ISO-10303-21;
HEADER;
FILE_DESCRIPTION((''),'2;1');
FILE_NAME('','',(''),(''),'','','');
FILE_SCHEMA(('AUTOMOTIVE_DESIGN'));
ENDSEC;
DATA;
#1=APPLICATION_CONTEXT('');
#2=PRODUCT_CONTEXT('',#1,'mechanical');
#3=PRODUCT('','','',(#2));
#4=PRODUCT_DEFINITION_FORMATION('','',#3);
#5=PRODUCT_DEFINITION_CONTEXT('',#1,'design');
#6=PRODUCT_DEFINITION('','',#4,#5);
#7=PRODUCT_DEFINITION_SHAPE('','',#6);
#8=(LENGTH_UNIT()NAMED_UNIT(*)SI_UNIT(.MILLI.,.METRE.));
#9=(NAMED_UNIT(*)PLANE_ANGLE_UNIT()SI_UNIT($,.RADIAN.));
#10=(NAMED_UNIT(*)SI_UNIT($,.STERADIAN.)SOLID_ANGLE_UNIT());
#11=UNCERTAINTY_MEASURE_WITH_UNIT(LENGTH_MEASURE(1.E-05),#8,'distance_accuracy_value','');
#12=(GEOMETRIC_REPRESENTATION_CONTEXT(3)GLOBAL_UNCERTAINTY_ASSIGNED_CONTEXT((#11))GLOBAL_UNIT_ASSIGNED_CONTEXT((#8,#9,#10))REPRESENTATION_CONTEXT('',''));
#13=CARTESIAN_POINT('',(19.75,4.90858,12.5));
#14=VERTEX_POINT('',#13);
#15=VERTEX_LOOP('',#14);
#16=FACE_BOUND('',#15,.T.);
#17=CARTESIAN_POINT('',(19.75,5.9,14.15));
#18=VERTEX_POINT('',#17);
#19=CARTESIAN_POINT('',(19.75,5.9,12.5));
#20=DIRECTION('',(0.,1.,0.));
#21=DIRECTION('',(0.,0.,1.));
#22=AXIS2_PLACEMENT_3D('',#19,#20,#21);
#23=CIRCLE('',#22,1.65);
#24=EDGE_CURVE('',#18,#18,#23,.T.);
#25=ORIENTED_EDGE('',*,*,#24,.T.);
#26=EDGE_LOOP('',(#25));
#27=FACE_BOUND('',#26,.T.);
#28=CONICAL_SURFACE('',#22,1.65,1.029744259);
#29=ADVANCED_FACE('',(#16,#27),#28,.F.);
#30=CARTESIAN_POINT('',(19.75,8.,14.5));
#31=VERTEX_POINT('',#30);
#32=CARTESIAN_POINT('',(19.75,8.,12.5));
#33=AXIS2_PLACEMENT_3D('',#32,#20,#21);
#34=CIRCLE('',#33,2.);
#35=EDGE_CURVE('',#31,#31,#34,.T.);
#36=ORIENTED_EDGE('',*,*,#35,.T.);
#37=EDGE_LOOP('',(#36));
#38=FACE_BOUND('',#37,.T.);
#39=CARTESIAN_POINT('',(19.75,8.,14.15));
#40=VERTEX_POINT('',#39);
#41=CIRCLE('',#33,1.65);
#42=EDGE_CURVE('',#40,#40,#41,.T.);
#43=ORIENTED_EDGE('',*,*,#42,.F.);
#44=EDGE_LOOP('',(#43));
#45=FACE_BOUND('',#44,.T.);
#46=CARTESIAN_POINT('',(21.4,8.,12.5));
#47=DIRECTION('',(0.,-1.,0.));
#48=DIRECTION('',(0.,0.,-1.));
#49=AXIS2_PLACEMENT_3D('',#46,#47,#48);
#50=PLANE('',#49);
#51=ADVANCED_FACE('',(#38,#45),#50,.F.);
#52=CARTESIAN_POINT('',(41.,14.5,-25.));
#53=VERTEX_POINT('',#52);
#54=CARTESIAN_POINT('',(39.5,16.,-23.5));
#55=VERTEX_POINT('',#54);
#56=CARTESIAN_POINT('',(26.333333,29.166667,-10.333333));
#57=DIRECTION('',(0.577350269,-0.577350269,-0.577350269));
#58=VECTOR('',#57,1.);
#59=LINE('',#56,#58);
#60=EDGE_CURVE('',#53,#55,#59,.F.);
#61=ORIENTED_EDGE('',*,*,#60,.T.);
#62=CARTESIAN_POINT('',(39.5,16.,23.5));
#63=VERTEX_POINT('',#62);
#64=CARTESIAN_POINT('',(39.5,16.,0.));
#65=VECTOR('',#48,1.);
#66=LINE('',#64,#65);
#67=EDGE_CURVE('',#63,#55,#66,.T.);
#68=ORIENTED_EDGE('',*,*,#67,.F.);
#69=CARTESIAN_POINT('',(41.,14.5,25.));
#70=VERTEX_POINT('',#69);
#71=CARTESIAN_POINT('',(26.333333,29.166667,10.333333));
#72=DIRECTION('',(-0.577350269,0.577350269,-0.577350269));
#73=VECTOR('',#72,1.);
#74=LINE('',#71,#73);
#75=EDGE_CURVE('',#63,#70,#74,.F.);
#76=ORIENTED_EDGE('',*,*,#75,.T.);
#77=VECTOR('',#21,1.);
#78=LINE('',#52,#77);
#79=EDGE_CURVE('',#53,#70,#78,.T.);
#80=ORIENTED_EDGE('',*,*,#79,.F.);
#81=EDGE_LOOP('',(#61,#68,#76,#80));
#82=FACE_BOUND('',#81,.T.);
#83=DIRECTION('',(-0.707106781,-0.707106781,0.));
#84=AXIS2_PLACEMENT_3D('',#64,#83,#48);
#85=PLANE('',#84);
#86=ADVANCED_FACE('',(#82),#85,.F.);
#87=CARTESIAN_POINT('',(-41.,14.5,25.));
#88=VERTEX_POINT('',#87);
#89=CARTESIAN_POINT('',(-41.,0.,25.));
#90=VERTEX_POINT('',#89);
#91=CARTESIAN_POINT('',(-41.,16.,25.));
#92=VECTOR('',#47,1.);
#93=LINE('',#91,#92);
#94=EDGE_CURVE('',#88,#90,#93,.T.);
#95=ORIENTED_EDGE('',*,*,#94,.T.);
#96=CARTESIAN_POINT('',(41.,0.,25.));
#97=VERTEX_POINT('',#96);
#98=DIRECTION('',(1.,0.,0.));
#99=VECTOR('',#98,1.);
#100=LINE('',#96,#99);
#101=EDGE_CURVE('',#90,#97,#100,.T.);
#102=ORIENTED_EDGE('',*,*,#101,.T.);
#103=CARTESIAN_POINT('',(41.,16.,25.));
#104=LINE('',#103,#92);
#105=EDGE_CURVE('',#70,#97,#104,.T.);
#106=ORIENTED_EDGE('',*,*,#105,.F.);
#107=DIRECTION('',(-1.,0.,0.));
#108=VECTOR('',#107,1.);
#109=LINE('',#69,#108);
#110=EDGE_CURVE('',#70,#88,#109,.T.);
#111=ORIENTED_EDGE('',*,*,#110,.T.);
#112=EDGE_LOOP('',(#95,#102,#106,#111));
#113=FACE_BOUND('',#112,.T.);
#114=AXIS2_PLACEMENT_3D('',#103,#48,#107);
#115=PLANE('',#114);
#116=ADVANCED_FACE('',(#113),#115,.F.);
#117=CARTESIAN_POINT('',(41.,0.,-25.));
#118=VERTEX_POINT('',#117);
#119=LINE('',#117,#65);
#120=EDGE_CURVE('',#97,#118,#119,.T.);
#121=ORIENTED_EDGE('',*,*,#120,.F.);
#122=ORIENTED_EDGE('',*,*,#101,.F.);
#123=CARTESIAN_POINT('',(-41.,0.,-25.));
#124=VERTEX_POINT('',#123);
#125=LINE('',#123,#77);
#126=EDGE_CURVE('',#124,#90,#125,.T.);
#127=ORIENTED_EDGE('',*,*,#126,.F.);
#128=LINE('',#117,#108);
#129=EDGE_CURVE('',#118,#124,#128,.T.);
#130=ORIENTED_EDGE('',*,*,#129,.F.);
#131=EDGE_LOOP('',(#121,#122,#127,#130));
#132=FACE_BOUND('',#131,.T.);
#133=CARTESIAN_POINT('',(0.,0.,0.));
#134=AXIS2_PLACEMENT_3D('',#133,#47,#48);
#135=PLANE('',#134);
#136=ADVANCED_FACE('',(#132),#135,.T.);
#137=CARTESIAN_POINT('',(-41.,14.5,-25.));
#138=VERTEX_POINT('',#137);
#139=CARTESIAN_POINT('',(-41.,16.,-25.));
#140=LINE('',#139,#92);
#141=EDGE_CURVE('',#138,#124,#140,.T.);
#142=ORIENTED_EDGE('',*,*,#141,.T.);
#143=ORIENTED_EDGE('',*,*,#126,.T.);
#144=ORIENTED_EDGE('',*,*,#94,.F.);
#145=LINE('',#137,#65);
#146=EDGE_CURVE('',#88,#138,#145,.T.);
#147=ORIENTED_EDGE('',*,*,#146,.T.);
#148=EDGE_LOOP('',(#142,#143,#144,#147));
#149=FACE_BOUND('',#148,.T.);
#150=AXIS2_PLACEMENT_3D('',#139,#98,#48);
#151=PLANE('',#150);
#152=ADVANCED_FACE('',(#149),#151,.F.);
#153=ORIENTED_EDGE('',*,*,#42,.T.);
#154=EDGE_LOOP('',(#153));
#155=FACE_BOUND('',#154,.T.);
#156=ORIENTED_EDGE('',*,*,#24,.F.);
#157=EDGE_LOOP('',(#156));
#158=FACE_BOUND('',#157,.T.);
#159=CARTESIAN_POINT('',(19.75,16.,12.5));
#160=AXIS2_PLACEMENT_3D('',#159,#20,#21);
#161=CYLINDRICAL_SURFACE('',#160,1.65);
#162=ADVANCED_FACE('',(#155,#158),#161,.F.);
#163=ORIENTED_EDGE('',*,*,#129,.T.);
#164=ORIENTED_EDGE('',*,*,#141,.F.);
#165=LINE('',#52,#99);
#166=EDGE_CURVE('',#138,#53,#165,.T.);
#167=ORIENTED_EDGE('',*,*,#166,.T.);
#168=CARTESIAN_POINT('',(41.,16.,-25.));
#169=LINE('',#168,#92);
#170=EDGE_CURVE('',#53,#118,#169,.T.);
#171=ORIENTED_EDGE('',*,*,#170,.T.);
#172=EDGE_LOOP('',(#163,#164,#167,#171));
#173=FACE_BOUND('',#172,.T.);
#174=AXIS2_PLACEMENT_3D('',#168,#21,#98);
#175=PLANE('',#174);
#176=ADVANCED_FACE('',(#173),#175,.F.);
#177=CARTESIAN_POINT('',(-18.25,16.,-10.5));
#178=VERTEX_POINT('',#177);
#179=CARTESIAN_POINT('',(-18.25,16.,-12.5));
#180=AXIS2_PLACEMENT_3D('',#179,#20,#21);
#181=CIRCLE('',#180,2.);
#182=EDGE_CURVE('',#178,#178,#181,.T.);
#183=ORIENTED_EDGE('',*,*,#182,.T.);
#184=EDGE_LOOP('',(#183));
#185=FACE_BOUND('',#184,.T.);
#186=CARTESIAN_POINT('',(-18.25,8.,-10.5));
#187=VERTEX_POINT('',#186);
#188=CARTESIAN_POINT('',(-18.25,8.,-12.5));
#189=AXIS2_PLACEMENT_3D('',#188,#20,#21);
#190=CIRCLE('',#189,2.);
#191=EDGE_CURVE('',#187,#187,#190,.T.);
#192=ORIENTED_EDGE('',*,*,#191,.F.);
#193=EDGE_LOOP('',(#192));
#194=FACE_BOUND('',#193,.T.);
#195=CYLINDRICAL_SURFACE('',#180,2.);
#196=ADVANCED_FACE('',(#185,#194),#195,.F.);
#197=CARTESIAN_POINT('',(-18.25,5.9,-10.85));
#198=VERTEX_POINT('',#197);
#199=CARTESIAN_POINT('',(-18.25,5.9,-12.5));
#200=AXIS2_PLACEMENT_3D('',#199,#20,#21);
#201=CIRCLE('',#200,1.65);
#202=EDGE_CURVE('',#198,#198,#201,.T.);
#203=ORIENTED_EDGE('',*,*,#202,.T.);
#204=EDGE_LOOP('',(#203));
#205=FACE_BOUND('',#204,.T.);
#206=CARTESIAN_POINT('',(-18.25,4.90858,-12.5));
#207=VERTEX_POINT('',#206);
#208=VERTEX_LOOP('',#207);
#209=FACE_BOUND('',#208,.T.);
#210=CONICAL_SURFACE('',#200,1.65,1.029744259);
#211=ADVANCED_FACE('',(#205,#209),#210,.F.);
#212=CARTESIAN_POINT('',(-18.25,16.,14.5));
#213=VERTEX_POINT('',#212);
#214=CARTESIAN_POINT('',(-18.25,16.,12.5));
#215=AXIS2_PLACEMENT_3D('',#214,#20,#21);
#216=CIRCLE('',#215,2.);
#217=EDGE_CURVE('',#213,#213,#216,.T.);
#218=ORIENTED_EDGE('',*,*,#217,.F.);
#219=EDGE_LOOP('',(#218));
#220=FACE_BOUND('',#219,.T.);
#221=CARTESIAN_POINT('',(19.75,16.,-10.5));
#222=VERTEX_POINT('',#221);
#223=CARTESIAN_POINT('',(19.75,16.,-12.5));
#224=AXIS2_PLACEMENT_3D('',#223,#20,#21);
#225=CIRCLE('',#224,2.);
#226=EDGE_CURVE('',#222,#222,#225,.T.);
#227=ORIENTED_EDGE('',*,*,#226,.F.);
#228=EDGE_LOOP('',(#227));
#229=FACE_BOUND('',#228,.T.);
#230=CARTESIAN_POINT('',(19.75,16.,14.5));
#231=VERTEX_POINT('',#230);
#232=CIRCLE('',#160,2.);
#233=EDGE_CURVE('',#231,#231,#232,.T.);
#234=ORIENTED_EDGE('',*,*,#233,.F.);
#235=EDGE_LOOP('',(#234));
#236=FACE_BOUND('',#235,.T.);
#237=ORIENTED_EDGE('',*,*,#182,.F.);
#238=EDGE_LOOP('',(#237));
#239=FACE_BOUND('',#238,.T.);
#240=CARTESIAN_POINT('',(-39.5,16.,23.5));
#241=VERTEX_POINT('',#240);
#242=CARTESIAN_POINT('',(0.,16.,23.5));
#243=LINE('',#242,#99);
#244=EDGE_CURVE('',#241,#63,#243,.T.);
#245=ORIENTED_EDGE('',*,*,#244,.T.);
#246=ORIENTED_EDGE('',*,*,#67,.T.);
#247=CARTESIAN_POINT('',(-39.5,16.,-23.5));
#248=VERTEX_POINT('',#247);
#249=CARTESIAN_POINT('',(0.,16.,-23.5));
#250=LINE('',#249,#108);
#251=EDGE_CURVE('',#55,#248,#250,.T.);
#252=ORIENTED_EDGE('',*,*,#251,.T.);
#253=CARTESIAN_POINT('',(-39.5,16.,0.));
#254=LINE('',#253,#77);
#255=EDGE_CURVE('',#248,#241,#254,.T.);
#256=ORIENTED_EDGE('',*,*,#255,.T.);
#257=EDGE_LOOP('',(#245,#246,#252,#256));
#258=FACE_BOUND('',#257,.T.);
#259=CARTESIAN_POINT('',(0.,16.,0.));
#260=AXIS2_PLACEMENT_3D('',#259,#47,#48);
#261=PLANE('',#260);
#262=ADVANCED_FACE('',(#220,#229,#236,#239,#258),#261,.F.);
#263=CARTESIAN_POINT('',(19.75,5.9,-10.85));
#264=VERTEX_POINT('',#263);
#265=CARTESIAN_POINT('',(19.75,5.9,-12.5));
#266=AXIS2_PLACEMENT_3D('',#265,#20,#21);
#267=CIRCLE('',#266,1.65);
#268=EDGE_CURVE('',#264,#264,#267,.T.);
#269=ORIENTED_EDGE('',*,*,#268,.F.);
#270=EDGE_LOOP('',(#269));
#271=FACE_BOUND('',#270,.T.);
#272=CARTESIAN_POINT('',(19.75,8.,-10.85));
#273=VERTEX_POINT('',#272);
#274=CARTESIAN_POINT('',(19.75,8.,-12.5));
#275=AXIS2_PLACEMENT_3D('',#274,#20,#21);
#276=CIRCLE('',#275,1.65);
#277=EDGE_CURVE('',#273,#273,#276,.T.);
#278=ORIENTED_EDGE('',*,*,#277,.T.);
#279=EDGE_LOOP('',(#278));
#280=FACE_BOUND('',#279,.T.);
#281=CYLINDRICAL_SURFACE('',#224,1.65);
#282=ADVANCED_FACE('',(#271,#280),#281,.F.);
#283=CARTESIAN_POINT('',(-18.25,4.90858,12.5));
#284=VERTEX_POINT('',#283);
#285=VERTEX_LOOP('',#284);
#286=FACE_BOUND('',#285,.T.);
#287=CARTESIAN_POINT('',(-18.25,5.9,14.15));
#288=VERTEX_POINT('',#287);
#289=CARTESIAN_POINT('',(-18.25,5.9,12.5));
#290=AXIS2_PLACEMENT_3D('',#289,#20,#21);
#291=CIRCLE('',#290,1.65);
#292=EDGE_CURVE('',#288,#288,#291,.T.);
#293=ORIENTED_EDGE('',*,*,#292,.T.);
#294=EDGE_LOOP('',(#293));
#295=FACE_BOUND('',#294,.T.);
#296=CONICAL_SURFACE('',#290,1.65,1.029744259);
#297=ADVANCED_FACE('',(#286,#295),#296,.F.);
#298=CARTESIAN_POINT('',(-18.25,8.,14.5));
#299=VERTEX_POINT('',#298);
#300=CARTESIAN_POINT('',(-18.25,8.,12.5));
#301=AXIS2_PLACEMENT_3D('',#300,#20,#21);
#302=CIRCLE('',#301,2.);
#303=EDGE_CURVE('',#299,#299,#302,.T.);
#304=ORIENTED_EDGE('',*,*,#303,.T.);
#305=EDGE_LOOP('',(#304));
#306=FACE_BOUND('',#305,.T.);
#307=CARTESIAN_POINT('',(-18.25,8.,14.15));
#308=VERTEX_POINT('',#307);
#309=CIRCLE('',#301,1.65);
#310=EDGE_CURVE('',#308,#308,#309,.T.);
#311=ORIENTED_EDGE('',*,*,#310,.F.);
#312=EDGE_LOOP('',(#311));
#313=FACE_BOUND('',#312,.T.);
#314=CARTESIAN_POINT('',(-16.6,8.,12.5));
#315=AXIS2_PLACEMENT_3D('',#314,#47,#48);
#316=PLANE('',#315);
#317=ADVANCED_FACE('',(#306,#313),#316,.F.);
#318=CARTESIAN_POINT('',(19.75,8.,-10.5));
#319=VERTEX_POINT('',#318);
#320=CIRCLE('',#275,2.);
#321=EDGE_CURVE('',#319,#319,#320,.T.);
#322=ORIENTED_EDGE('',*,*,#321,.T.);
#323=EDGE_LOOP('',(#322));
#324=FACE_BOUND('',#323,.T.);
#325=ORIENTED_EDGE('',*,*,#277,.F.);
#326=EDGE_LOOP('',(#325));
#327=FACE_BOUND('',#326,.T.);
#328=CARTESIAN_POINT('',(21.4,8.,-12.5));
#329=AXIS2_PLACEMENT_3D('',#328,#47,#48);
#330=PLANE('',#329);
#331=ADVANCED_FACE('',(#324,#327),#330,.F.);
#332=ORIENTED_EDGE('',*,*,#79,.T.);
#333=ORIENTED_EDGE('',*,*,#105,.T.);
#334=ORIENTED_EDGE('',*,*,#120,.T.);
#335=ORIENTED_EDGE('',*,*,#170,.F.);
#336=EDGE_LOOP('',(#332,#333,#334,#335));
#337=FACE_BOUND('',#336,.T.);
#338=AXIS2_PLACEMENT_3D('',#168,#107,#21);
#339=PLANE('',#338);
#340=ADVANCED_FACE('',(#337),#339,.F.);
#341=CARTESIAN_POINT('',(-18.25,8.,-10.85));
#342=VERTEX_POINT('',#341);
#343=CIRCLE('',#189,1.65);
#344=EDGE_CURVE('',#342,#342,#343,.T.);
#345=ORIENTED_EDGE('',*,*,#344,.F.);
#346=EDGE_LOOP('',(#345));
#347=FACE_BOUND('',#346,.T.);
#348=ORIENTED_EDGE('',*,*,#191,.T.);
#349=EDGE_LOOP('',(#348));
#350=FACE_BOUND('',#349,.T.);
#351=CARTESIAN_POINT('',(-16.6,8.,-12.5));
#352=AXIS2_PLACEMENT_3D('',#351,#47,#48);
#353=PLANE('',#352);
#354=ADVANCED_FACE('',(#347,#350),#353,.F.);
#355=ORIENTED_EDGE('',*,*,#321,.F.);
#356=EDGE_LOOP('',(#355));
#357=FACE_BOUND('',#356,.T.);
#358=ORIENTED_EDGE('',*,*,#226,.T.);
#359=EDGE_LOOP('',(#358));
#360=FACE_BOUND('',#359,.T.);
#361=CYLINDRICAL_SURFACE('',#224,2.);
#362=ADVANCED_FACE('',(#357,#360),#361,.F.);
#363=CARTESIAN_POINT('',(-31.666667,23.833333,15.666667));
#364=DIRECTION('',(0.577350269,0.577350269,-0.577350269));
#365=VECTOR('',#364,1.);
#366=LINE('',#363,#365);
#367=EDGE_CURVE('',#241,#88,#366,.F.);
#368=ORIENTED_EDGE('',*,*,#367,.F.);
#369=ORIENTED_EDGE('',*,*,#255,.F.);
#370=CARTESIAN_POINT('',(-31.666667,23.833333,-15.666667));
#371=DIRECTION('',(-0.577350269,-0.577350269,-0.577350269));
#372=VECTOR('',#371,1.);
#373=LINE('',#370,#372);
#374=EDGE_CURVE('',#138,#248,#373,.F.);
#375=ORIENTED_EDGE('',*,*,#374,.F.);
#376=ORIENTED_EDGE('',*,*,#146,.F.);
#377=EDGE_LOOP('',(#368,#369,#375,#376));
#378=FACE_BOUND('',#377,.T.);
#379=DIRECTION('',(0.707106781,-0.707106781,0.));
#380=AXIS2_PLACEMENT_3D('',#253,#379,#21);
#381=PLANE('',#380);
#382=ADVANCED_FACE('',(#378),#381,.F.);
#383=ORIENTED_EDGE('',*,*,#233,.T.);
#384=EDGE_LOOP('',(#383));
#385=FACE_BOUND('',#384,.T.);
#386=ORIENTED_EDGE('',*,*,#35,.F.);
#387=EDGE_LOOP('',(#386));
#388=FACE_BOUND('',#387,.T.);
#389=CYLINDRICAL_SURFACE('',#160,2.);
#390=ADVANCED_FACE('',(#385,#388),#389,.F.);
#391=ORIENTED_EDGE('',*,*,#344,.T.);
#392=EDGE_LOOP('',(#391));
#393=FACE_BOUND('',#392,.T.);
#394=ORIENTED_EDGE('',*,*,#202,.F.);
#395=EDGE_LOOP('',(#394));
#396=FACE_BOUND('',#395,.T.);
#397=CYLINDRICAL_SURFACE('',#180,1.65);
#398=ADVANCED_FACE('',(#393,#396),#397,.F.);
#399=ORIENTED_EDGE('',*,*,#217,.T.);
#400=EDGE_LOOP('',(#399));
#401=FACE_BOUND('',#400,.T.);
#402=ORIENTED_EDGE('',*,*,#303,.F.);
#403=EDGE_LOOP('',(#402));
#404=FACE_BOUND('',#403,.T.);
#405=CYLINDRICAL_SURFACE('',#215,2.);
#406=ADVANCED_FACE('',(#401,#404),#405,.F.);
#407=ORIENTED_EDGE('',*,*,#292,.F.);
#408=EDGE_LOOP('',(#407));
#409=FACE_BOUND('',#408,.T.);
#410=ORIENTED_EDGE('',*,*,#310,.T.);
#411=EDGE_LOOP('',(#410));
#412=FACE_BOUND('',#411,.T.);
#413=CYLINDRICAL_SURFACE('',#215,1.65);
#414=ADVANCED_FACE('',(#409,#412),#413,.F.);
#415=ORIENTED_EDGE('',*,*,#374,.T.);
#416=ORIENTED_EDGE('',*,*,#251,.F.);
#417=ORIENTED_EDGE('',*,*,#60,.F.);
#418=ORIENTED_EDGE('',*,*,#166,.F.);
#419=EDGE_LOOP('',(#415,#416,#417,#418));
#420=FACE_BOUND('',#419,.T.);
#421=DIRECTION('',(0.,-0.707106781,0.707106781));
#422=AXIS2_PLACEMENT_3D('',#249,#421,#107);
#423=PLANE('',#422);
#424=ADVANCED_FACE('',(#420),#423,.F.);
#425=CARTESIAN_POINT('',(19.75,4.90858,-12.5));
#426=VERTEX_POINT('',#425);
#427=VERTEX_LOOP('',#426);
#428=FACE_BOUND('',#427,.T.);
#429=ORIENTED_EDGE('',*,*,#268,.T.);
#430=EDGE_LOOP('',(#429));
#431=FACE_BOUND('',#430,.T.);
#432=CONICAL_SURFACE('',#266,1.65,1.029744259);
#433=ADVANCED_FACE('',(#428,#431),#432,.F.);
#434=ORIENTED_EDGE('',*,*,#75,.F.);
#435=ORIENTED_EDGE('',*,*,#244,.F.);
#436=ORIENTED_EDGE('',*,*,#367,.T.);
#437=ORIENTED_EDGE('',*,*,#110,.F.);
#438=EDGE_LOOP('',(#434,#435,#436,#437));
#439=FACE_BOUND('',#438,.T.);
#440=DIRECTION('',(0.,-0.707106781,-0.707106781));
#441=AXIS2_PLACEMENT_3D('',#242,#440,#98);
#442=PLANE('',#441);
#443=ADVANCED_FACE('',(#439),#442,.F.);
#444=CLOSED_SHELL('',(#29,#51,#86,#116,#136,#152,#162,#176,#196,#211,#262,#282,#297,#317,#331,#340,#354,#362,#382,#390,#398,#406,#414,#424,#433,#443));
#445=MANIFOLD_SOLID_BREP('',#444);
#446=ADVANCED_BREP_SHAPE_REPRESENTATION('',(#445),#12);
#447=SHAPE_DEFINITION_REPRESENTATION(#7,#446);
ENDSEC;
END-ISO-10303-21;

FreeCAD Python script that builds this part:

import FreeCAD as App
import Part
import Sketcher
Q = App.Units.Quantity


def edges_at(feature, points):
    """Names of the edges that pass closest to the given points."""
    edges = feature.Shape.Edges
    near = lambda p: min(range(len(edges)), key=lambda i: edges[i].distToShape(Part.Vertex(*p))[0])
    return sorted({f"Edge{near(p) + 1}" for p in points})

doc = App.newDocument("Part")
body = doc.addObject("PartDesign::Body", "Body")

# Sketch on XZ plane
sketch1 = body.newObject("Sketcher::SketchObject", "Sketch")
sketch1.AttachmentSupport = (doc.getObject("XZ_Plane"), [""])
sketch1.MapMode = "FlatFace"
sketch1.addGeometry([
    Part.LineSegment(App.Vector(-41, -25, 0), App.Vector(-41, 25, 0)),
    Part.LineSegment(App.Vector(-41, 25, 0), App.Vector(41, 25, 0)),
    Part.LineSegment(App.Vector(41, 25, 0), App.Vector(41, -25, 0)),
    Part.LineSegment(App.Vector(41, -25, 0), App.Vector(-41, -25, 0)),
], False)
sketch1.addConstraint([
    Sketcher.Constraint("Coincident", 0, 2, 1, 1),
    Sketcher.Constraint("Coincident", 1, 2, 2, 1),
    Sketcher.Constraint("Coincident", 2, 2, 3, 1),
    Sketcher.Constraint("Coincident", 3, 2, 0, 1),
    Sketcher.Constraint("Vertical", 0),
    Sketcher.Constraint("Horizontal", 1),
    Sketcher.Constraint("Vertical", 2),
    Sketcher.Constraint("Horizontal", 3),
    Sketcher.Constraint("Symmetric", 0, 2, 2, 2, -1, 1),
    Sketcher.Constraint("DistanceX", 1, 1, 1, 2, Q("82 mm")),
    Sketcher.Constraint("DistanceY", 0, 1, 0, 2, Q("50 mm")),
])
pad1 = body.newObject("PartDesign::Pad", "Pad")
pad1.Profile = sketch1
pad1.Length = 16
pad1.Reversed = True
doc.recompute()

chamfer = body.newObject("PartDesign::Chamfer", "Chamfer")
chamfer.Base = (pad1, edges_at(pad1, [
    (41, 16, 0),
    (0, 16, -25),
    (-41, 16, 0),
    (0, 16, 25),
]))
chamfer.Size = 1.5

# Sketch on XZ plane
sketch2 = body.newObject("Sketcher::SketchObject", "Sketch001")
sketch2.AttachmentSupport = (doc.getObject("XZ_Plane"), [""])
sketch2.MapMode = "FlatFace"
sketch2.AttachmentOffset = App.Placement(App.Vector(0, 0, -16), App.Rotation())
sketch2.addGeometry([
    Part.Circle(App.Vector(-18.25, 12.5, 0), App.Vector(0, 0, 1), 1.65),
    Part.Circle(App.Vector(19.75, -12.5, 0), App.Vector(0, 0, 1), 1.65),
    Part.Circle(App.Vector(-18.25, -12.5, 0), App.Vector(0, 0, 1), 1.65),
    Part.Circle(App.Vector(19.75, 12.5, 0), App.Vector(0, 0, 1), 1.65),
], False)
sketch2.addConstraint([
    Sketcher.Constraint("Equal", 0, 1),
    Sketcher.Constraint("Equal", 1, 2),
    Sketcher.Constraint("Equal", 2, 3),
    Sketcher.Constraint("Symmetric", 0, 3, 2, 3, -1),
    Sketcher.Constraint("Symmetric", 1, 3, 3, 3, -1),
    Sketcher.Constraint("Horizontal", 1, 3, 2, 3),
    Sketcher.Constraint("Diameter", 0, Q("3.3 mm")),
    Sketcher.Constraint("DistanceX", 0, 3, 1, 3, Q("38 mm")),
    Sketcher.Constraint("DistanceY", 1, 3, 0, 3, Q("25 mm")),
    Sketcher.Constraint("DistanceX", 0, 3, -1, 1, Q("18.25 mm")),
])
doc.recompute()
hole = body.newObject("PartDesign::Hole", "Hole")
hole.Profile = sketch2
hole.ThreadType = "None"
hole.Diameter = 3.3
hole.DepthType = "Dimension"
hole.Depth = 10.1
hole.DrillPoint = "Angled"
hole.DrillPointAngle = 118
hole.HoleCutType = "Counterbore"
hole.HoleCutDiameter = 4
hole.HoleCutDepth = 8
hole.Reversed = True

doc.recompute()
